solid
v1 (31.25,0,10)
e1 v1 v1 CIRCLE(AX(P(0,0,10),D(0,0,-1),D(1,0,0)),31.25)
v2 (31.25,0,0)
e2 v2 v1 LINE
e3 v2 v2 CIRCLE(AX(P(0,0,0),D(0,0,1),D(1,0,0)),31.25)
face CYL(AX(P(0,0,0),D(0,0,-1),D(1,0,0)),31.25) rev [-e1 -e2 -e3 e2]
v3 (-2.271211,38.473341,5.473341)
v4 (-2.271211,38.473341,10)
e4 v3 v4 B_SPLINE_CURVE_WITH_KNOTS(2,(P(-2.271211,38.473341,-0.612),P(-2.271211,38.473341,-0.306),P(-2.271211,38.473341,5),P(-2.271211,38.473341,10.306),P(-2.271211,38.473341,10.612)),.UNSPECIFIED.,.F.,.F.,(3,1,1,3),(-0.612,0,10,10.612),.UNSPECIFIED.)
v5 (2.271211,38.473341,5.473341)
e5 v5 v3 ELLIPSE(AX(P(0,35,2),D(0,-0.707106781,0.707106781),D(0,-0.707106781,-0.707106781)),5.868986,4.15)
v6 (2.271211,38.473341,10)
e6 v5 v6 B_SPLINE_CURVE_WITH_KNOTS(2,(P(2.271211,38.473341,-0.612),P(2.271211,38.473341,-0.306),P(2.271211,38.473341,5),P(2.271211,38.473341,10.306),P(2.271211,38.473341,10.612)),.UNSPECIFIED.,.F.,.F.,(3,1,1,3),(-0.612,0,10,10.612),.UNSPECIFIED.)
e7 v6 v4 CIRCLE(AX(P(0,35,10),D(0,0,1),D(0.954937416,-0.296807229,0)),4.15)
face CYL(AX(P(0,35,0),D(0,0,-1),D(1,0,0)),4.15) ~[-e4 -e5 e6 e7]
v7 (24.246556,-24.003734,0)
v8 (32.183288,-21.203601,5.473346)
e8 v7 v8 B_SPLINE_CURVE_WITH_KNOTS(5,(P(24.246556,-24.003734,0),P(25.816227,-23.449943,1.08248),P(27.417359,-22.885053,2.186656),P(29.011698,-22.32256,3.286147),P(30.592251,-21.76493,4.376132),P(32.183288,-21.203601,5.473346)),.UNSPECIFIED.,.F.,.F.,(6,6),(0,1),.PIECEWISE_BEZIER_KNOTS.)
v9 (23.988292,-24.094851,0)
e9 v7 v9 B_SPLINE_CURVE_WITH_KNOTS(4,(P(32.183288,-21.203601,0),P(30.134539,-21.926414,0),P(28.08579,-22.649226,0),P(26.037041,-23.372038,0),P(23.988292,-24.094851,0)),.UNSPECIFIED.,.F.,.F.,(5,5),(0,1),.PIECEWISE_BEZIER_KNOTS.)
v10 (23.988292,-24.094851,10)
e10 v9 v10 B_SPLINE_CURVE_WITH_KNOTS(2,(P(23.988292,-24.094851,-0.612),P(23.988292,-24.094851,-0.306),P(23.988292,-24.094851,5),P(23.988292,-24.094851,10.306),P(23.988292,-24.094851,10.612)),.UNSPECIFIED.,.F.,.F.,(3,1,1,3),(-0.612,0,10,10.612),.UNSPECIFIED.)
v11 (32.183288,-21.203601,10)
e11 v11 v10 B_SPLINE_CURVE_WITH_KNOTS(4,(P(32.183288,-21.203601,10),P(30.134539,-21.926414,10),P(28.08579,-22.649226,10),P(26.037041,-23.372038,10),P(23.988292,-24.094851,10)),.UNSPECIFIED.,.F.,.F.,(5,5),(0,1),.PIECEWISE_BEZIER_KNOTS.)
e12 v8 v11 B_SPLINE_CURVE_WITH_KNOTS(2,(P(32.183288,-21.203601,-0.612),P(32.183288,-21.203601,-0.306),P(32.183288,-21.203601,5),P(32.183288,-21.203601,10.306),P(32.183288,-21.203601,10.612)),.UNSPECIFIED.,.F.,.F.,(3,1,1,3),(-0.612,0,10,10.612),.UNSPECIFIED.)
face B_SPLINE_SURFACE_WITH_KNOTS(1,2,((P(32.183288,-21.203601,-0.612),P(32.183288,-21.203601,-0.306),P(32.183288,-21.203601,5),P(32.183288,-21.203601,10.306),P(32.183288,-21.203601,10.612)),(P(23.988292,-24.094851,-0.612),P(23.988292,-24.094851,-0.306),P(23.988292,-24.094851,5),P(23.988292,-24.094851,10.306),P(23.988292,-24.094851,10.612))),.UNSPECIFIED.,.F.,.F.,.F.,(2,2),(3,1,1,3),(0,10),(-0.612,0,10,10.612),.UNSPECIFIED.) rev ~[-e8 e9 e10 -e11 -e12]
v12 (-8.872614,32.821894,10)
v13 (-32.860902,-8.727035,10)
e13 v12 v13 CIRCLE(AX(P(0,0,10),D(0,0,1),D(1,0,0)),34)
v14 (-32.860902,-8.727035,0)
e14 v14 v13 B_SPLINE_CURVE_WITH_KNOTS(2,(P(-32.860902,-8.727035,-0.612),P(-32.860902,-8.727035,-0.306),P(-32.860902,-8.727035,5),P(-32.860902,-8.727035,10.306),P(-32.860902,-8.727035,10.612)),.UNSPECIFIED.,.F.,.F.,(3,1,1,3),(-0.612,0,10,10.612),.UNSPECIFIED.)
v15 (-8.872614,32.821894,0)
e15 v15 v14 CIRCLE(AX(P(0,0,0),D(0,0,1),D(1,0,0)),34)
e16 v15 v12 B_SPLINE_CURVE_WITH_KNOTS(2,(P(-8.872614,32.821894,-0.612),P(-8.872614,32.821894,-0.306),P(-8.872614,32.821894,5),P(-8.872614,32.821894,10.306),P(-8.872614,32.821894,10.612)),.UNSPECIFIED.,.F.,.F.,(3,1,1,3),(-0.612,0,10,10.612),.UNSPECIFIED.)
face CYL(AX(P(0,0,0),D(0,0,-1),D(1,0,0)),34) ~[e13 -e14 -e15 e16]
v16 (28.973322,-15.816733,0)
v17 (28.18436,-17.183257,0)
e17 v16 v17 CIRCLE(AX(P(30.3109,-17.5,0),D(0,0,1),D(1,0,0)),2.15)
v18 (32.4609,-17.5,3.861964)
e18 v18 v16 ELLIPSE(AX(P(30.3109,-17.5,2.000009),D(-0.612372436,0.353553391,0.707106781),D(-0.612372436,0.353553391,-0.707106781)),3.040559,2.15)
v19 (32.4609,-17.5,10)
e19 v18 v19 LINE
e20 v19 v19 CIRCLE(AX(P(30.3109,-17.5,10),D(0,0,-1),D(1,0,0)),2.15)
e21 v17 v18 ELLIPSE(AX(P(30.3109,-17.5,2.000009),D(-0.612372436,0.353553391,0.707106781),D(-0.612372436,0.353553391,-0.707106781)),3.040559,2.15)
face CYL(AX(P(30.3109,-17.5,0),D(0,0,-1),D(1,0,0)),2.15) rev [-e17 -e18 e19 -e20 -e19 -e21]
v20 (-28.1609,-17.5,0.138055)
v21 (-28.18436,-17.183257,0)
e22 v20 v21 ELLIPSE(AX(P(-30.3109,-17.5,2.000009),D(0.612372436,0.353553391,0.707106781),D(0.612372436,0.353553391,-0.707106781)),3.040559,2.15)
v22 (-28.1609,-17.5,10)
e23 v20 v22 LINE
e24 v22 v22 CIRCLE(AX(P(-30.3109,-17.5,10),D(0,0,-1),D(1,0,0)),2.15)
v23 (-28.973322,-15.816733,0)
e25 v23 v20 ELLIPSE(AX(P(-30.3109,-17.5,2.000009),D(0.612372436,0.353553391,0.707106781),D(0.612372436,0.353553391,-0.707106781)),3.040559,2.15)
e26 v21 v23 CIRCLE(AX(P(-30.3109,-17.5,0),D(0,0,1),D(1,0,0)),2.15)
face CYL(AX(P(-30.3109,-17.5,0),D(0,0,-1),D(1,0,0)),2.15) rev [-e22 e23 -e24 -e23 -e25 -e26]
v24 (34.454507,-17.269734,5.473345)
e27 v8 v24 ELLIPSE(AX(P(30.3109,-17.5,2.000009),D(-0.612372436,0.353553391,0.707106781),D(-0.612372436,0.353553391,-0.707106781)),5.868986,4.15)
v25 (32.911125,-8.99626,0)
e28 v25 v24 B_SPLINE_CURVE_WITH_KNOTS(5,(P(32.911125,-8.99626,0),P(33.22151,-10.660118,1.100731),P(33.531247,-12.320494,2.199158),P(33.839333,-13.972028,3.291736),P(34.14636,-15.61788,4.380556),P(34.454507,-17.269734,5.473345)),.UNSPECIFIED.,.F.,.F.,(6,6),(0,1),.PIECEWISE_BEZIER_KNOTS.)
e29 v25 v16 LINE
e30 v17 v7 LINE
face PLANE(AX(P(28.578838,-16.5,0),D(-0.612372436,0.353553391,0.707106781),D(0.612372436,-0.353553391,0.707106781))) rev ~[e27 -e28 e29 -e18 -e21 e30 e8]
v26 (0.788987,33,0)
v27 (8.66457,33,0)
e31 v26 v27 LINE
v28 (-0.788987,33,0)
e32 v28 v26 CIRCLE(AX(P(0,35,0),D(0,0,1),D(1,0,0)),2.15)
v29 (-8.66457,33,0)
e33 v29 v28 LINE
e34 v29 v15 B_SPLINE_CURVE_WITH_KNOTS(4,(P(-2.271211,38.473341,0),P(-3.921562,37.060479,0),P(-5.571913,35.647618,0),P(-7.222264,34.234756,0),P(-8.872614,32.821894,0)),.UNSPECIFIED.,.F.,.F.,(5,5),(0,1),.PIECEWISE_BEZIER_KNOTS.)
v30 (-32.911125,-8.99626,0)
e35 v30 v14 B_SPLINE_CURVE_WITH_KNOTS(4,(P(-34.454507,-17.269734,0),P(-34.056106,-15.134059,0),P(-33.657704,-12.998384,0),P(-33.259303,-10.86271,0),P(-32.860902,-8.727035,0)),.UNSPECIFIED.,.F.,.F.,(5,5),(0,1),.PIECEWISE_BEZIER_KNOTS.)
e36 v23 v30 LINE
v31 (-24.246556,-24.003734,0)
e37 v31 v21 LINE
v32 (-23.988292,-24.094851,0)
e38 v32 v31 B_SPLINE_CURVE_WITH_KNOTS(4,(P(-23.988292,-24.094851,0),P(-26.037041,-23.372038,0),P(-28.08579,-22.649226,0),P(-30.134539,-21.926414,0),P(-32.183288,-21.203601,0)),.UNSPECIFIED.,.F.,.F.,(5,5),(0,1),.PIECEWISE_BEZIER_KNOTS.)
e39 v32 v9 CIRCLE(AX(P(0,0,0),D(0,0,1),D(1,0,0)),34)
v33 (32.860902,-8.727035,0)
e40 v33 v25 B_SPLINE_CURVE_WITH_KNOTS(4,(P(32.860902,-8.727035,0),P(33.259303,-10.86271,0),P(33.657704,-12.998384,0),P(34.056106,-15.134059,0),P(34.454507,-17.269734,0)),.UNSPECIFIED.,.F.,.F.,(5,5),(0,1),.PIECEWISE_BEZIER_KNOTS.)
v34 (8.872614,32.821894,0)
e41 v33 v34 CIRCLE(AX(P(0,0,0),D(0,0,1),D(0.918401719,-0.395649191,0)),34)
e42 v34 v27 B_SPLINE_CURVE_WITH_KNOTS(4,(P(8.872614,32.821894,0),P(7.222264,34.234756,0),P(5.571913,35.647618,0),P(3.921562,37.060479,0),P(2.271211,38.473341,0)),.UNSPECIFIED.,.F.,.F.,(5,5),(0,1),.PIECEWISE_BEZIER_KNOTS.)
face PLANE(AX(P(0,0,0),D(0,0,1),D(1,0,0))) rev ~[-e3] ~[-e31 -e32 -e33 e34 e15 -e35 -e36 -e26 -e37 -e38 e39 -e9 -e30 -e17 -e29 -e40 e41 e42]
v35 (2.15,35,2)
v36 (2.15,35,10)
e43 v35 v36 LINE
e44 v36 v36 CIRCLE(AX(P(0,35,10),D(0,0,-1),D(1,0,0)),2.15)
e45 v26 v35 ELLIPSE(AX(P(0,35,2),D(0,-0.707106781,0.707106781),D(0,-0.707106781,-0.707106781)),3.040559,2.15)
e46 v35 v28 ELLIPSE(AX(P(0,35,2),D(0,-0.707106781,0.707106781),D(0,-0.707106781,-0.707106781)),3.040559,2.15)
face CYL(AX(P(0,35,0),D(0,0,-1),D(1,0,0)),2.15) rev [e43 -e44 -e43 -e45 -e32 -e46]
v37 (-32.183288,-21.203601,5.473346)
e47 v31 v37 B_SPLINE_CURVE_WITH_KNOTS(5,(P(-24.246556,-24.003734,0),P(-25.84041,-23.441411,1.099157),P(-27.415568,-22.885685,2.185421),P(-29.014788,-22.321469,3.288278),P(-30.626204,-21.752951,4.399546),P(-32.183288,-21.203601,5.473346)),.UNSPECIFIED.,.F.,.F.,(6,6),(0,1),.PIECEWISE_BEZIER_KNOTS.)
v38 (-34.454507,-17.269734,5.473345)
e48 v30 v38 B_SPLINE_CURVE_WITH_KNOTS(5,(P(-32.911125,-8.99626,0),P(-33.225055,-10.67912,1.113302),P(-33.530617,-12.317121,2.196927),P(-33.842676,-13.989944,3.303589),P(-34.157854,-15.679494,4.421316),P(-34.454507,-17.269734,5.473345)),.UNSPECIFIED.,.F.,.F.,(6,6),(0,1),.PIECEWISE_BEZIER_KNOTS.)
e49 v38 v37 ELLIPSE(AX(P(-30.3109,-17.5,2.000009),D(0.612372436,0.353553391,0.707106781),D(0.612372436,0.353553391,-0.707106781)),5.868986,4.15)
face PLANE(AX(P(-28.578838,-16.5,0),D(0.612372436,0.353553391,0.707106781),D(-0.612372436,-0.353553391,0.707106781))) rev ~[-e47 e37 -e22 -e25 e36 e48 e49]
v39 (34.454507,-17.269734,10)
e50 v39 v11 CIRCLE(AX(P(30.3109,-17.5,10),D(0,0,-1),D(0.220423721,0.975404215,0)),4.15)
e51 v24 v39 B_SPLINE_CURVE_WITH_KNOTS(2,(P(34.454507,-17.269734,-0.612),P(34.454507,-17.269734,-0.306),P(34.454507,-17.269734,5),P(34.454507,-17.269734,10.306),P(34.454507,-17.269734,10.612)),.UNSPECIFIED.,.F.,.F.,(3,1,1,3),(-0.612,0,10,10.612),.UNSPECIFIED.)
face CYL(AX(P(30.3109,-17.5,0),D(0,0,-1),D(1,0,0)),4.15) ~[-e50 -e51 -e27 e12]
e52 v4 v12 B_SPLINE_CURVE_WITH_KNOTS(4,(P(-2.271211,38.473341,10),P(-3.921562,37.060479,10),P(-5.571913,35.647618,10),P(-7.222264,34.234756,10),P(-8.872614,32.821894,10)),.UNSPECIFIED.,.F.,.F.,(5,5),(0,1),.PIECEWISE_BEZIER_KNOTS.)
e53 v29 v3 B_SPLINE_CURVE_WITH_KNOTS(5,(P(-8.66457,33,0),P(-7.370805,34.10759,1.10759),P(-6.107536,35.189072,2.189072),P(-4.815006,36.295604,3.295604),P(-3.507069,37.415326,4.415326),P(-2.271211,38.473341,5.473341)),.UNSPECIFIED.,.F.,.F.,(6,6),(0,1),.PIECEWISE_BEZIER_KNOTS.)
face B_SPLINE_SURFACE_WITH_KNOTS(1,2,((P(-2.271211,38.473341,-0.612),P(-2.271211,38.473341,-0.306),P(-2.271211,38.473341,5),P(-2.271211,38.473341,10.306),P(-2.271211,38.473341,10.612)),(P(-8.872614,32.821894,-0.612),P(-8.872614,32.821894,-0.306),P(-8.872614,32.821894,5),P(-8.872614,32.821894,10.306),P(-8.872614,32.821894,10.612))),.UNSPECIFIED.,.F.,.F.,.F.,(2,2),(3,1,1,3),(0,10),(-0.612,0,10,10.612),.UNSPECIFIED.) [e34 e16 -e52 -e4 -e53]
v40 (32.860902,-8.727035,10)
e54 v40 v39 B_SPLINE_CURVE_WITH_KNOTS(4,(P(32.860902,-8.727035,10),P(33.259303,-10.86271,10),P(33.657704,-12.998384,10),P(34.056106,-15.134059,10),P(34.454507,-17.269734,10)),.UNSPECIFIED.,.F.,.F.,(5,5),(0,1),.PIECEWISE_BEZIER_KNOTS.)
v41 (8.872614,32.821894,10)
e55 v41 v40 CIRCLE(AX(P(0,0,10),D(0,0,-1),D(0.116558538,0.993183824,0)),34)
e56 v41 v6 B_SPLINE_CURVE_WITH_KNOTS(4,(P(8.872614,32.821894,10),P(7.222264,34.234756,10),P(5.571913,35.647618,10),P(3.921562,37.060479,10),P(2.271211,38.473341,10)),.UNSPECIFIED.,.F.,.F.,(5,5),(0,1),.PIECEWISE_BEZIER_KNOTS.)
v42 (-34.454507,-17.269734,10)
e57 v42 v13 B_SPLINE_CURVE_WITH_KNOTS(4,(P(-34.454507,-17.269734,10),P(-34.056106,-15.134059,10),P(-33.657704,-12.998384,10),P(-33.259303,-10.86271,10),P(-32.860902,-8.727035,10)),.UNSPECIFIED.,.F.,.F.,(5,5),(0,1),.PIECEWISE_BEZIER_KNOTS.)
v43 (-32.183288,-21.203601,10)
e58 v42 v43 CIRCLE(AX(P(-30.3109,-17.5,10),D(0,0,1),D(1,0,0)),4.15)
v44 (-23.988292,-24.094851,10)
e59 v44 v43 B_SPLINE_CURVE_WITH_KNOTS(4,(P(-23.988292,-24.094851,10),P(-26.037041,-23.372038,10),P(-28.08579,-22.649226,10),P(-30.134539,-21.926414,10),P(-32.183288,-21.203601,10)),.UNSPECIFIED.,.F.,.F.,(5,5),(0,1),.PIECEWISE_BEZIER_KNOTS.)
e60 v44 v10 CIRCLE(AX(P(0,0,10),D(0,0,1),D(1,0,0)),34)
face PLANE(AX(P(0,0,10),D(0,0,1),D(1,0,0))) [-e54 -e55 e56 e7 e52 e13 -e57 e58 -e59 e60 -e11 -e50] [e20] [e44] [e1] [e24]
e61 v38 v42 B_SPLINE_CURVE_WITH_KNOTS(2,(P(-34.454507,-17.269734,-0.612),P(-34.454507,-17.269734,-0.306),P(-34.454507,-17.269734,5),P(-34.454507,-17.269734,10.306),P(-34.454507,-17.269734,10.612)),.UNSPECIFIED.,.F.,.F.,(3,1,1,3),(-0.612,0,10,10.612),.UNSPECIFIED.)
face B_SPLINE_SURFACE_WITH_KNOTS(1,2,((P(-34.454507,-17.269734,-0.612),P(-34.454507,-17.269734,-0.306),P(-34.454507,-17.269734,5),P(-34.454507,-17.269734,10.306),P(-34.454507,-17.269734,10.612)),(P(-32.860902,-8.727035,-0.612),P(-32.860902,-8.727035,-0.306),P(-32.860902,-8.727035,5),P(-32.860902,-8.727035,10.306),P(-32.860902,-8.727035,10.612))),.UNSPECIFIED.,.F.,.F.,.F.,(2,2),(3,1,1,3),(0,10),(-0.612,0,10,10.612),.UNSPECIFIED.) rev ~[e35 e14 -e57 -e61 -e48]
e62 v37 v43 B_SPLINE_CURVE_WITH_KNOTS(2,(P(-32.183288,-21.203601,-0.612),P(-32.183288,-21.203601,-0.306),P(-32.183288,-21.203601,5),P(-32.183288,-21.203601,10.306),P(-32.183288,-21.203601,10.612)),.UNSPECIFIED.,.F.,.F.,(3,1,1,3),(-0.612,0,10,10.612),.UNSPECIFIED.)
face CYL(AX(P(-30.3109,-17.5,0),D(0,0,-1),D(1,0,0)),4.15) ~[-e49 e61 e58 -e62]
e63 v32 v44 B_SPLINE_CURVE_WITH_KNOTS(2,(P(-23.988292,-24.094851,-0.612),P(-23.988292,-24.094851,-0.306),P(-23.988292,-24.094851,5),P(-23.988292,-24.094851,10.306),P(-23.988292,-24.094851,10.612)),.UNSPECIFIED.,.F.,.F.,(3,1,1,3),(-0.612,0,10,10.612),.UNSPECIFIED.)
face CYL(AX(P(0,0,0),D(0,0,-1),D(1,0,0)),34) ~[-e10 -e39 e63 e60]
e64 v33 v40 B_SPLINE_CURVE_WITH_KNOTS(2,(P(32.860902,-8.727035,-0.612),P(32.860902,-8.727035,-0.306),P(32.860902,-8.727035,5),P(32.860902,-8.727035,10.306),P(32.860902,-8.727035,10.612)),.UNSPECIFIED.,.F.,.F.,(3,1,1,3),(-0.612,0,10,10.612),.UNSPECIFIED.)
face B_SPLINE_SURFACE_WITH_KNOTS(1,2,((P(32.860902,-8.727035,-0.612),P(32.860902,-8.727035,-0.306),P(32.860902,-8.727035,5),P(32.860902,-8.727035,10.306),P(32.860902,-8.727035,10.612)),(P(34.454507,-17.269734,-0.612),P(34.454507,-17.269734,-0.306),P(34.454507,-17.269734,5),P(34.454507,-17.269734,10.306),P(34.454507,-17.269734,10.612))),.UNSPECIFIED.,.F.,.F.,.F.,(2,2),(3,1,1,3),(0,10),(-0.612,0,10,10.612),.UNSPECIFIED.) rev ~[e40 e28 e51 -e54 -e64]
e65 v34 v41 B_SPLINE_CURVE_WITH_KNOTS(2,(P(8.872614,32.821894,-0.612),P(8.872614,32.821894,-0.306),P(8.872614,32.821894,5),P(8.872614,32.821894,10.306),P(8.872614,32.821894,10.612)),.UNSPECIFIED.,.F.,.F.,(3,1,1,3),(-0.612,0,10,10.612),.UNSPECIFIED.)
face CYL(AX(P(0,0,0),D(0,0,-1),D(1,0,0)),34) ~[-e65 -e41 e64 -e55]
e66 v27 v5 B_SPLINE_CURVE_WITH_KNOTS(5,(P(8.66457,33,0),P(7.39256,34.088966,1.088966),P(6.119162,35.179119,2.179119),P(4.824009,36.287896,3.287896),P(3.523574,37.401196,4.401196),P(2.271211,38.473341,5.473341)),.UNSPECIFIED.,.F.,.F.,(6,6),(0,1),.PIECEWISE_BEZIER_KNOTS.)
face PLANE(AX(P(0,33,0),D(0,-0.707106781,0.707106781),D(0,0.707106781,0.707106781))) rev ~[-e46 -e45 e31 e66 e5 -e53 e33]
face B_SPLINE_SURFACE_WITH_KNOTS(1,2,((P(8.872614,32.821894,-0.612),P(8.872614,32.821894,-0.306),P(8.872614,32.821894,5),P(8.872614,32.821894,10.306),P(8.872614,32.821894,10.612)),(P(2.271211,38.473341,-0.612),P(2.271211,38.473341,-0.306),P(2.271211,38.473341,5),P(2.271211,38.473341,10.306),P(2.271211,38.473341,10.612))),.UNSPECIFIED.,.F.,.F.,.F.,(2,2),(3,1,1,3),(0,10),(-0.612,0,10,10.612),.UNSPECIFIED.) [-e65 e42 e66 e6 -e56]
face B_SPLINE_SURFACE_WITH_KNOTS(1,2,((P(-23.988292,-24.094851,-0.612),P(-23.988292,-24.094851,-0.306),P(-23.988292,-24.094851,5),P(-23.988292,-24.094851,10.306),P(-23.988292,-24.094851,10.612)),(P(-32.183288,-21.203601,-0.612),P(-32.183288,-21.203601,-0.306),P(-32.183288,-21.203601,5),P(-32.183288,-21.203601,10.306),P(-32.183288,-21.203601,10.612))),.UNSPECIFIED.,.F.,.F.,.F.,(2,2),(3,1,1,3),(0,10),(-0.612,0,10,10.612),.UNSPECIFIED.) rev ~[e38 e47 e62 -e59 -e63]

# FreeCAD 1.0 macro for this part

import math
import FreeCAD as App
import Part
import Sketcher

V = App.Vector


def edges_at(feature, points):
    """Names of the edges that pass closest to the given points."""
    edges = feature.Shape.Edges
    near = lambda p: min(range(len(edges)), key=lambda i: edges[i].distToShape(Part.Vertex(*p))[0])
    return sorted({f"Edge{near(p) + 1}" for p in points})

doc = App.newDocument("Part")
body = doc.addObject("PartDesign::Body", "Body")

sketch1 = body.newObject("Sketcher::SketchObject", "Sketch")
sketch1.AttachmentSupport = (doc.getObject("XY_Plane"), [""])
sketch1.MapMode = "FlatFace"
sketch1.addGeometry([
    Part.ArcOfCircle(Part.Circle(V(0, 0, 0), V(0, 0, 1), 34), math.radians(-23.306469), math.radians(83.306473)),
    Part.ArcOfCircle(Part.Circle(V(0, 35, 0), V(0, 0, 1), 4.15), math.radians(-17.265938), math.radians(197.265938)),
    Part.ArcOfCircle(Part.Circle(V(0, 0, 0), V(0, 0, 1), 34), math.radians(96.693527), math.radians(203.306469)),
    Part.ArcOfCircle(Part.Circle(V(-30.3109, -17.5, 0), V(0, 0, 1), 4.15), math.radians(102.733921), math.radians(317.266061)),
    Part.ArcOfCircle(Part.Circle(V(0, 0, 0), V(0, 0, 1), 34), math.radians(-143.306486), math.radians(-36.693514)),
    Part.ArcOfCircle(Part.Circle(V(30.3109, -17.5, 0), V(0, 0, 1), 4.15), math.radians(-137.266061), math.radians(77.266079)),
    Part.Circle(V(0, 0, 0), V(0, 0, 1), 31.25),
    Part.Circle(V(30.3109, -17.5, 0), V(0, 0, 1), 2.15),
    Part.Circle(V(0, 35, 0), V(0, 0, 1), 2.15),
    Part.Circle(V(-30.3109, -17.5, 0), V(0, 0, 1), 2.15),
], False)
sketch1.addConstraint([
    Sketcher.Constraint("Coincident", 0, 2, 1, 1),
    Sketcher.Constraint("Coincident", 1, 2, 2, 1),
    Sketcher.Constraint("Coincident", 2, 2, 3, 1),
    Sketcher.Constraint("Coincident", 3, 2, 4, 1),
    Sketcher.Constraint("Coincident", 4, 2, 5, 1),
    Sketcher.Constraint("Coincident", 5, 2, 0, 1),
    Sketcher.Constraint("Coincident", 0, 3, -1, 1),
    Sketcher.Constraint("Coincident", 2, 3, -1, 1),
    Sketcher.Constraint("Coincident", 4, 3, -1, 1),
    Sketcher.Constraint("Coincident", 6, 3, -1, 1),
    Sketcher.Constraint("Coincident", 7, 3, 5, 3),
    Sketcher.Constraint("Coincident", 8, 3, 1, 3),
    Sketcher.Constraint("Coincident", 9, 3, 3, 3),
    Sketcher.Constraint("Equal", 0, 2),
    Sketcher.Constraint("Equal", 1, 3),
    Sketcher.Constraint("Equal", 2, 4),
    Sketcher.Constraint("Equal", 3, 5),
    Sketcher.Constraint("Equal", 7, 8),
    Sketcher.Constraint("Equal", 8, 9),
    Sketcher.Constraint("Symmetric", 3, 3, 5, 3, -2),
    Sketcher.Constraint("PointOnObject", 1, 3, -2),
    Sketcher.Constraint("Radius", 0, 34.0),
    Sketcher.Constraint("Diameter", 6, 62.5),
    Sketcher.Constraint("Diameter", 7, 4.3),
    Sketcher.Constraint("DistanceY", -1, 1, 1, 3, 35.0),
    Sketcher.Constraint("Radius", 1, 4.15),
    Sketcher.Constraint("DistanceY", 3, 3, -1, 1, 17.5),
    Sketcher.Constraint("DistanceX", 3, 3, -1, 1, 30.311),
])
pad1 = body.newObject("PartDesign::Pad", "Pad")
pad1.Profile = sketch1
pad1.Length = 10
doc.recompute()

chamfer = body.newObject("PartDesign::Chamfer", "Chamfer")
chamfer.Base = (pad1, edges_at(pad1, [
    (31.226, -13.452, 5),
    (3.963, 33.768, 5),
    (-3.963, 33.768, 5),
    (-31.226, -13.452, 5),
    (-27.263, -20.316, 5),
    (27.263, -20.316, 5),
]))
chamfer.Size = 5

sketch2 = body.newObject("Sketcher::SketchObject", "Sketch001")
sketch2.AttachmentSupport = (doc.getObject("YZ_Plane"), [""])
sketch2.MapMode = "FlatFace"
sketch2.addGeometry([
    Part.LineSegment(V(49.4315, 16.4315, 0), V(33, 0, 0)),
    Part.LineSegment(V(33, 0, 0), V(49.4315, 0, 0)),
    Part.LineSegment(V(49.4315, 0, 0), V(49.4315, 16.4315, 0)),
], False)
sketch2.addConstraint([
    Sketcher.Constraint("Coincident", 0, 2, 1, 1),
    Sketcher.Constraint("Coincident", 1, 2, 2, 1),
    Sketcher.Constraint("Coincident", 2, 2, 0, 1),
    Sketcher.Constraint("Horizontal", 1),
    Sketcher.Constraint("Vertical", 2),
    Sketcher.Constraint("PointOnObject", 0, 2, -1),
    Sketcher.Constraint("Equal", 1, 2),
    Sketcher.Constraint("DistanceX", -1, 1, 0, 2, 33.0),
    Sketcher.Constraint("DistanceX", 1, 1, 1, 2, 16.4315),
])
pocket1 = body.newObject("PartDesign::Pocket", "Pocket")
pocket1.Profile = sketch2
pocket1.Length = 20
pocket1.Midplane = True
doc.recompute()

polarpattern = body.newObject("PartDesign::PolarPattern", "PolarPattern")
polarpattern.Originals = [pocket1]
polarpattern.Axis = (doc.getObject("Z_Axis"), [""])
polarpattern.Angle = 360
polarpattern.Occurrences = 3
body.Tip = polarpattern

doc.recompute()
